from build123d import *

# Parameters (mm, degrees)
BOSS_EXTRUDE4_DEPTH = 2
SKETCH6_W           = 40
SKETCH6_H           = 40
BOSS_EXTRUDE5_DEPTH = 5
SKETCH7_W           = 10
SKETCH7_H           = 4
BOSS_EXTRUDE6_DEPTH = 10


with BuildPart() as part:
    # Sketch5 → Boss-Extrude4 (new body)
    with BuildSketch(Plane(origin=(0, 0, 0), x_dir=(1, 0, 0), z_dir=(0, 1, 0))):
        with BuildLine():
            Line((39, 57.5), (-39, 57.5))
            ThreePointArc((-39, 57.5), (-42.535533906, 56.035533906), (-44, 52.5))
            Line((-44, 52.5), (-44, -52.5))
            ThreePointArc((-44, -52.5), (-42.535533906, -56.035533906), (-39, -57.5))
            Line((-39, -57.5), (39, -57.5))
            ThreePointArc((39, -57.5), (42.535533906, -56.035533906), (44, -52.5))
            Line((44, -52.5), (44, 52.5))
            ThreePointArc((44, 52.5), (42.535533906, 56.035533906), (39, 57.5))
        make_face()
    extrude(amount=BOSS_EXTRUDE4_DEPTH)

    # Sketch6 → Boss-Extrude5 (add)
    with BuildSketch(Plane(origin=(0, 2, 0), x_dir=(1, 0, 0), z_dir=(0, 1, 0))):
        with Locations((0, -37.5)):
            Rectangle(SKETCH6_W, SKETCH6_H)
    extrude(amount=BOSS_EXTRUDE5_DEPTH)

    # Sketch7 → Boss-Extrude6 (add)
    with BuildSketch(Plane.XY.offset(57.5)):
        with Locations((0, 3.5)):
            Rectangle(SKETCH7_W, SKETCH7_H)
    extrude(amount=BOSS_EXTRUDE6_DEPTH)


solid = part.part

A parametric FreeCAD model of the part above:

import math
import FreeCAD as App
import Part
import Sketcher

V = App.Vector


def add_polygon(sketch, points):
    """Adds a closed chain of lines whose ends are joined by coincident constraints."""
    first, n = sketch.GeometryCount, len(points)
    for a, b in zip(points, points[1:] + points[:1]):
        sketch.addGeometry(Part.LineSegment(App.Vector(*a, 0), App.Vector(*b, 0)), False)
    for i in range(n):
        sketch.addConstraint(Sketcher.Constraint("Coincident", first + i, 2, first + (i + 1) % n, 1))

doc = App.newDocument("Part")
body = doc.addObject("PartDesign::Body", "Body")

sketch1 = body.newObject("Sketcher::SketchObject", "Sketch")
sketch1.AttachmentSupport = (doc.getObject("XZ_Plane"), [""])
sketch1.MapMode = "FlatFace"
sketch1.addGeometry([
    Part.LineSegment(V(39, -58, 0), V(-39, -58, 0)),
    Part.ArcOfCircle(Part.Circle(V(-39, -52, 0), V(0, 0, 1), 5), math.radians(180), math.radians(270)),
    Part.LineSegment(V(-44, -52, 0), V(-44, 52, 0)),
    Part.ArcOfCircle(Part.Circle(V(-39, 52, 0), V(0, 0, 1), 5), math.radians(90), math.radians(180)),
    Part.LineSegment(V(-39, 58, 0), V(39, 58, 0)),
    Part.ArcOfCircle(Part.Circle(V(39, 52, 0), V(0, 0, 1), 5), math.radians(0), math.radians(90)),
    Part.LineSegment(V(44, 52, 0), V(44, -52, 0)),
    Part.ArcOfCircle(Part.Circle(V(39, -52, 0), V(0, 0, 1), 5), math.radians(-90), math.radians(0)),
], False)
sketch1.addConstraint([
    Sketcher.Constraint("Tangent", 0, 2, 1, 2),
    Sketcher.Constraint("Tangent", 1, 1, 2, 1),
    Sketcher.Constraint("Tangent", 2, 2, 3, 2),
    Sketcher.Constraint("Tangent", 3, 1, 4, 1),
    Sketcher.Constraint("Tangent", 4, 2, 5, 2),
    Sketcher.Constraint("Tangent", 5, 1, 6, 1),
    Sketcher.Constraint("Tangent", 6, 2, 7, 2),
    Sketcher.Constraint("Tangent", 7, 1, 0, 1),
    Sketcher.Constraint("Horizontal", 0),
    Sketcher.Constraint("Vertical", 2),
    Sketcher.Constraint("Horizontal", 4),
    Sketcher.Constraint("Vertical", 6),
    Sketcher.Constraint("Equal", 1, 3),
    Sketcher.Constraint("Equal", 3, 5),
    Sketcher.Constraint("Equal", 5, 7),
    Sketcher.Constraint("Symmetric", 1, 3, 5, 3, -1, 1),
    Sketcher.Constraint("Radius", 1, 5.0),
    Sketcher.Constraint("DistanceX", 0, 2, 0, 1, 78.0),
    Sketcher.Constraint("DistanceY", 2, 1, 2, 2, 105.0),
])
pad1 = body.newObject("PartDesign::Pad", "Pad")
pad1.Profile = sketch1
pad1.Length = 2
pad1.Reversed = True

sketch2 = body.newObject("Sketcher::SketchObject", "Sketch001")
sketch2.AttachmentSupport = (doc.getObject("XZ_Plane"), [""])
sketch2.MapMode = "FlatFace"
sketch2.AttachmentOffset = App.Placement(V(0, 0, -2), App.Rotation())
add_polygon(sketch2, [(-20, 18), (-20, 58), (20, 58), (20, 18)])
sketch2.addConstraint([
    Sketcher.Constraint("Vertical", 0),
    Sketcher.Constraint("Horizontal", 1),
    Sketcher.Constraint("Vertical", 2),
    Sketcher.Constraint("Horizontal", 3),
    Sketcher.Constraint("Equal", 3, 0),
    Sketcher.Constraint("DistanceX", 1, 1, 1, 2, 40.0),
    Sketcher.Constraint("DistanceX", 0, 2, -1, 1, 20.0),
    Sketcher.Constraint("DistanceY", -1, 1, 0, 2, 57.5),
])
pad2 = body.newObject("PartDesign::Pad", "Pad001")
pad2.Profile = sketch2
pad2.Length = 5
pad2.Reversed = True

sketch3 = body.newObject("Sketcher::SketchObject", "Sketch002")
sketch3.AttachmentSupport = (doc.getObject("XY_Plane"), [""])
sketch3.MapMode = "FlatFace"
sketch3.AttachmentOffset = App.Placement(V(0, 0, 57.5), App.Rotation())
add_polygon(sketch3, [(-5, 5.5), (-5, 1.5), (5, 1.5), (5, 5.5)])
sketch3.addConstraint([
    Sketcher.Constraint("Vertical", 0),
    Sketcher.Constraint("Horizontal", 1),
    Sketcher.Constraint("Vertical", 2),
    Sketcher.Constraint("Horizontal", 3),
    Sketcher.Constraint("DistanceX", 1, 1, 1, 2, 10.0),
    Sketcher.Constraint("DistanceY", 0, 2, 0, 1, 4.0),
    Sketcher.Constraint("DistanceX", 0, 2, -1, 1, 5.0),
    Sketcher.Constraint("DistanceY", -1, 1, 0, 2, 1.5),
])
pad3 = body.newObject("PartDesign::Pad", "Pad002")
pad3.Profile = sketch3
pad3.Length = 10

doc.recompute()
